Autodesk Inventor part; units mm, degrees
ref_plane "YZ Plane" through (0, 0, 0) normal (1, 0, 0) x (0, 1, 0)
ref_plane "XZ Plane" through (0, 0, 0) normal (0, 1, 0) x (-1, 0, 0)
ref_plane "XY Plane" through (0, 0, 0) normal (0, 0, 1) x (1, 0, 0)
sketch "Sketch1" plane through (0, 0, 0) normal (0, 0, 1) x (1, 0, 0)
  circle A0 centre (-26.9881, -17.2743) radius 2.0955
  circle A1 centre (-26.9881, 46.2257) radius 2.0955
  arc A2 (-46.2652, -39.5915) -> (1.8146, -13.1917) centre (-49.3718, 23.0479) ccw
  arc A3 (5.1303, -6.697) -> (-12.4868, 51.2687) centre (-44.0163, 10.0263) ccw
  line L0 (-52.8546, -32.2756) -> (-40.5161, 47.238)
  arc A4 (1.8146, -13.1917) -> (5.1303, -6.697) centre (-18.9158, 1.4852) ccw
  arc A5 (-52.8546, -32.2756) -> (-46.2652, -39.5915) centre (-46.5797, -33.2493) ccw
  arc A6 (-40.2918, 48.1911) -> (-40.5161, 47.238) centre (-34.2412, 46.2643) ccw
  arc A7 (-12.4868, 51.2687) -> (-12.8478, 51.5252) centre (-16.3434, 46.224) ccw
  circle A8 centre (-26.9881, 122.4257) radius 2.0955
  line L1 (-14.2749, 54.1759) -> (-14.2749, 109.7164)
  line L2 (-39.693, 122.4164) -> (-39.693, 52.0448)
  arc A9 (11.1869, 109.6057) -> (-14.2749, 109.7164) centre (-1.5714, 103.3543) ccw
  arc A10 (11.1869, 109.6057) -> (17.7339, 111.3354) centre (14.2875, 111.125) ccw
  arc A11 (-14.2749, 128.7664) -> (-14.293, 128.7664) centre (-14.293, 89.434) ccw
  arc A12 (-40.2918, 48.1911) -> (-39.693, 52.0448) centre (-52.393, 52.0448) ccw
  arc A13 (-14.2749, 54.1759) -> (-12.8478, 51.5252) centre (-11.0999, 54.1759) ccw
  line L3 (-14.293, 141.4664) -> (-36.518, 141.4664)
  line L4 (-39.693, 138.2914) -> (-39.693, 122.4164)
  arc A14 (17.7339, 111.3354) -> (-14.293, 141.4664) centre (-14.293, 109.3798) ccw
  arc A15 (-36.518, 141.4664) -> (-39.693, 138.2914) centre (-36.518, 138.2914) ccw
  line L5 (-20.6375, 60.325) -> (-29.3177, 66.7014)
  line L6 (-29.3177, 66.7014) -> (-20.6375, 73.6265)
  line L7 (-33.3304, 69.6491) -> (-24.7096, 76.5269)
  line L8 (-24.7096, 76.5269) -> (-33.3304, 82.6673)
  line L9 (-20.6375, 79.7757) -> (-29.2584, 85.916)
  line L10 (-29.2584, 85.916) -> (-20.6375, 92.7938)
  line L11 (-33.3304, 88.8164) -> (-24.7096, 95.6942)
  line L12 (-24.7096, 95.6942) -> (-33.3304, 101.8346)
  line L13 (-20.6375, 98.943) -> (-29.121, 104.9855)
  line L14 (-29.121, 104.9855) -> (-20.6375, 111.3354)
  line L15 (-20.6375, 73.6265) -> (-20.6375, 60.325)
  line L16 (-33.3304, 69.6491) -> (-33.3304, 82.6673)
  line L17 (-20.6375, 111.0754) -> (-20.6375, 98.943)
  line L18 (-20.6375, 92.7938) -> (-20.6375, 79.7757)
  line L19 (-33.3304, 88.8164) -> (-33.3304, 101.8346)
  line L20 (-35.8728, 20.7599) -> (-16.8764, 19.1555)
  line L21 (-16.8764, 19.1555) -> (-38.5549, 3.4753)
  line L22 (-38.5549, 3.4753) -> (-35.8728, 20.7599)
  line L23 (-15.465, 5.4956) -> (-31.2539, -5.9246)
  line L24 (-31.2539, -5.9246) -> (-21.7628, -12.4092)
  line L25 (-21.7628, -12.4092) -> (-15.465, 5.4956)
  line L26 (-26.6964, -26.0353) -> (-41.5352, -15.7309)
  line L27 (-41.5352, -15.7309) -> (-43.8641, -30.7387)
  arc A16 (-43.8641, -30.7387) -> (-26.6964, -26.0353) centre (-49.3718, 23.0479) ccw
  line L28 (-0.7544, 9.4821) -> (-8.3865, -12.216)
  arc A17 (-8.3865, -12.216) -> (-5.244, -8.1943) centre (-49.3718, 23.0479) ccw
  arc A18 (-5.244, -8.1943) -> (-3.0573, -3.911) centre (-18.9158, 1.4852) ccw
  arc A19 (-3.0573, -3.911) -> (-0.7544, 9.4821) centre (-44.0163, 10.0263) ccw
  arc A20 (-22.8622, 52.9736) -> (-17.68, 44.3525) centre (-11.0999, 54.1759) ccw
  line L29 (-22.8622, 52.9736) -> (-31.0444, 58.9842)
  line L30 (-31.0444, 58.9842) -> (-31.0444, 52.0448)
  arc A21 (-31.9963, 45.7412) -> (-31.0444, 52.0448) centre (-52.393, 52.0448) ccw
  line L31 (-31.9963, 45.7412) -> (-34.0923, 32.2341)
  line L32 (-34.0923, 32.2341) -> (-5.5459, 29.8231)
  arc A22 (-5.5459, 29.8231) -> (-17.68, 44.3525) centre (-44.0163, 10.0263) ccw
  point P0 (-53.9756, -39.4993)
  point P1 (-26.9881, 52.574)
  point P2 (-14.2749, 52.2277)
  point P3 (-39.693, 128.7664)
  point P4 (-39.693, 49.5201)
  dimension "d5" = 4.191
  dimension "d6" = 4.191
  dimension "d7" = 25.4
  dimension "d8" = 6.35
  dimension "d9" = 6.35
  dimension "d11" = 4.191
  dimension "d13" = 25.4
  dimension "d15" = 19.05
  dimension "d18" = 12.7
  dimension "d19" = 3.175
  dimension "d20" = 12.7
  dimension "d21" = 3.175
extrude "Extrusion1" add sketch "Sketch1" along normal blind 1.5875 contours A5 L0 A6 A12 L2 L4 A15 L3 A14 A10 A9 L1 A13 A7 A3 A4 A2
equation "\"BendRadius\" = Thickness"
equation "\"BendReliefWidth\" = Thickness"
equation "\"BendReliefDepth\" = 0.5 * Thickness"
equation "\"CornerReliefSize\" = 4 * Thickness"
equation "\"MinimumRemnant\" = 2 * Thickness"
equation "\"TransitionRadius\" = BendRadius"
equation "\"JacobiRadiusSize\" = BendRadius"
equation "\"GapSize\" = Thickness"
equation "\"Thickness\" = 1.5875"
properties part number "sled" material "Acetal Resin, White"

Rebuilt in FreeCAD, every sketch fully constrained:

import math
import FreeCAD as App
import Part
import Sketcher
from FreeCAD import Vector
Q = App.Units.Quantity

doc = App.newDocument("Part")
body = doc.addObject("PartDesign::Body", "Body")

sketch1 = body.newObject("Sketcher::SketchObject", "Sketch")
sketch1.AttachmentSupport = (doc.getObject("XY_Plane"), [""])
sketch1.MapMode = "FlatFace"
sketch1.addGeometry([
    Part.ArcOfCircle(Part.Circle(Vector(-46.5797, -33.2493, 0), Vector(0, 0, 1), 6.349997), math.radians(171.179544), math.radians(272.838885)),
    Part.ArcOfCircle(Part.Circle(Vector(-49.3718, 23.0479, 0), Vector(0, 0, 1), 62.716389), math.radians(-87.160743), math.radians(-35.298217)),
    Part.ArcOfCircle(Part.Circle(Vector(-18.917793, 1.486406, 0), Vector(0, 0, 1), 25.402341), math.radians(-35.297705), math.radians(-18.793097)),
    Part.ArcOfCircle(Part.Circle(Vector(-44.0163, 10.0263, 0), Vector(0, 0, 1), 51.913939), math.radians(-18.792094), math.radians(52.602364)),
    Part.ArcOfCircle(Part.Circle(Vector(-16.327299, 46.24584, 0), Vector(0, 0, 1), 6.32286), math.radians(52.598325), math.radians(56.612084)),
    Part.ArcOfCircle(Part.Circle(Vector(-11.0999, 54.1759, 0), Vector(0, 0, 1), 3.175), math.radians(180), math.radians(236.598714)),
    Part.LineSegment(Vector(-14.2749, 54.1759, 0), Vector(-14.2749, 109.7164, 0)),
    Part.ArcOfCircle(Part.Circle(Vector(-1.5714, 103.3543, 0), Vector(0, 0, 1), 14.207541), math.radians(26.104249), math.radians(153.397616)),
    Part.ArcOfCircle(Part.Circle(Vector(14.2875, 111.125, 0), Vector(0, 0, 1), 3.452824), math.radians(-153.895057), math.radians(3.493526)),
    Part.ArcOfCircle(Part.Circle(Vector(-14.293, 109.3798, 0), Vector(0, 0, 1), 32.08655), math.radians(3.494209), math.radians(90)),
    Part.LineSegment(Vector(-14.293, 141.4664, 0), Vector(-36.518, 141.4664, 0)),
    Part.ArcOfCircle(Part.Circle(Vector(-36.518, 138.2914, 0), Vector(0, 0, 1), 3.175), math.radians(90), math.radians(180)),
    Part.LineSegment(Vector(-39.693, 138.2914, 0), Vector(-39.693, 52.0448, 0)),
    Part.ArcOfCircle(Part.Circle(Vector(-52.393, 52.0448, 0), Vector(0, 0, 1), 12.700002), math.radians(-17.664389), math.radians(0)),
    Part.ArcOfCircle(Part.Circle(Vector(-34.239374, 46.263795, 0), Vector(0, 0, 1), 6.351879), math.radians(162.3367), math.radians(171.177569)),
    Part.LineSegment(Vector(-40.5161, 47.238, 0), Vector(-52.8546, -32.2756, 0)),
    Part.LineSegment(Vector(-41.5352, -15.7309, 0), Vector(-26.6964, -26.0353, 0)),
    Part.ArcOfCircle(Part.Circle(Vector(-49.3718, 23.0479, 0), Vector(0, 0, 1), 54.067897), math.radians(-84.153342), math.radians(-65.204062)),
    Part.LineSegment(Vector(-43.8641, -30.7387, 0), Vector(-41.5352, -15.7309, 0)),
    Part.Circle(Vector(-26.9881, -17.2743, 0), Vector(0, 0, 1), 2.0955),
    Part.LineSegment(Vector(-31.2539, -5.9246, 0), Vector(-15.465, 5.4956, 0)),
    Part.LineSegment(Vector(-15.465, 5.4956, 0), Vector(-21.7628, -12.4092, 0)),
    Part.LineSegment(Vector(-21.7628, -12.4092, 0), Vector(-31.2539, -5.9246, 0)),
    Part.LineSegment(Vector(-38.5549, 3.4753, 0), Vector(-35.8728, 20.7599, 0)),
    Part.LineSegment(Vector(-35.8728, 20.7599, 0), Vector(-16.8764, 19.1555, 0)),
    Part.LineSegment(Vector(-16.8764, 19.1555, 0), Vector(-38.5549, 3.4753, 0)),
    Part.LineSegment(Vector(-31.0444, 58.9842, 0), Vector(-22.8622, 52.9736, 0)),
    Part.ArcOfCircle(Part.Circle(Vector(-11.0999, 54.1759, 0), Vector(0, 0, 1), 11.823588), math.radians(-174.163701), math.radians(-123.815732)),
    Part.ArcOfCircle(Part.Circle(Vector(-44.0163, 10.0263, 0), Vector(0, 0, 1), 43.265321), math.radians(27.230271), math.radians(52.503278)),
    Part.LineSegment(Vector(-5.5459, 29.8231, 0), Vector(-34.0923, 32.2341, 0)),
    Part.LineSegment(Vector(-34.0923, 32.2341, 0), Vector(-31.9963, 45.7412, 0)),
    Part.ArcOfCircle(Part.Circle(Vector(-52.39502, 52.045262, 0), Vector(0, 0, 1), 21.35062), math.radians(-17.173347), math.radians(-0.00124)),
    Part.LineSegment(Vector(-31.0444, 52.0448, 0), Vector(-31.0444, 58.9842, 0)),
    Part.LineSegment(Vector(-8.3865, -12.216, 0), Vector(-0.7544, 9.4821, 0)),
    Part.ArcOfCircle(Part.Circle(Vector(-44.0163, 10.0263, 0), Vector(0, 0, 1), 43.265321), math.radians(-18.792126), math.radians(-0.720697)),
    Part.ArcOfCircle(Part.Circle(Vector(-18.9158, 1.4852, 0), Vector(0, 0, 1), 16.751443), math.radians(-35.298119), math.radians(-18.79199)),
    Part.ArcOfCircle(Part.Circle(Vector(-49.372873, 23.04878, 0), Vector(0, 0, 1), 54.069284), math.radians(-40.708787), math.radians(-35.298354)),
    Part.LineSegment(Vector(-20.6375, 73.6265, 0), Vector(-20.6375, 60.325, 0)),
    Part.LineSegment(Vector(-20.6375, 60.325, 0), Vector(-29.3177, 66.7014, 0)),
    Part.LineSegment(Vector(-29.3177, 66.7014, 0), Vector(-20.6375, 73.6265, 0)),
    Part.LineSegment(Vector(-24.7096, 76.5269, 0), Vector(-33.3304, 69.6491, 0)),
    Part.LineSegment(Vector(-33.3304, 69.6491, 0), Vector(-33.3304, 82.6673, 0)),
    Part.LineSegment(Vector(-33.3304, 82.6673, 0), Vector(-24.7096, 76.5269, 0)),
    Part.LineSegment(Vector(-24.7096, 95.6942, 0), Vector(-33.3304, 88.8164, 0)),
    Part.LineSegment(Vector(-33.3304, 88.8164, 0), Vector(-33.3304, 101.8346, 0)),
    Part.LineSegment(Vector(-33.3304, 101.8346, 0), Vector(-24.7096, 95.6942, 0)),
    Part.LineSegment(Vector(-20.6375, 92.7938, 0), Vector(-20.6375, 79.7757, 0)),
    Part.LineSegment(Vector(-20.6375, 79.7757, 0), Vector(-29.2584, 85.916, 0)),
    Part.LineSegment(Vector(-29.2584, 85.916, 0), Vector(-20.6375, 92.7938, 0)),
    Part.Circle(Vector(-26.9881, 122.4257, 0), Vector(0, 0, 1), 2.0955),
], False)
sketch1.addConstraint([
    Sketcher.Constraint("Coincident", 0, 2, 1, 1),
    Sketcher.Constraint("Coincident", 1, 2, 2, 1),
    Sketcher.Constraint("Coincident", 2, 2, 3, 1),
    Sketcher.Constraint("Coincident", 3, 2, 4, 1),
    Sketcher.Constraint("Coincident", 4, 2, 5, 2),
    Sketcher.Constraint("Coincident", 5, 1, 6, 1),
    Sketcher.Constraint("Coincident", 6, 2, 7, 2),
    Sketcher.Constraint("Coincident", 7, 1, 8, 1),
    Sketcher.Constraint("Coincident", 8, 2, 9, 1),
    Sketcher.Constraint("Coincident", 9, 2, 10, 1),
    Sketcher.Constraint("Coincident", 10, 2, 11, 1),
    Sketcher.Constraint("Coincident", 11, 2, 12, 1),
    Sketcher.Constraint("Coincident", 12, 2, 13, 2),
    Sketcher.Constraint("Coincident", 13, 1, 14, 1),
    Sketcher.Constraint("Coincident", 14, 2, 15, 1),
    Sketcher.Constraint("Coincident", 15, 2, 0, 1),
    Sketcher.Constraint("Coincident", 16, 2, 17, 2),
    Sketcher.Constraint("Coincident", 17, 1, 18, 1),
    Sketcher.Constraint("Coincident", 18, 2, 16, 1),
    Sketcher.Constraint("Coincident", 20, 2, 21, 1),
    Sketcher.Constraint("Coincident", 21, 2, 22, 1),
    Sketcher.Constraint("Coincident", 22, 2, 20, 1),
    Sketcher.Constraint("Coincident", 23, 2, 24, 1),
    Sketcher.Constraint("Coincident", 24, 2, 25, 1),
    Sketcher.Constraint("Coincident", 25, 2, 23, 1),
    Sketcher.Constraint("Coincident", 26, 2, 27, 1),
    Sketcher.Constraint("Coincident", 27, 2, 28, 2),
    Sketcher.Constraint("Coincident", 28, 1, 29, 1),
    Sketcher.Constraint("Coincident", 29, 2, 30, 1),
    Sketcher.Constraint("Coincident", 30, 2, 31, 1),
    Sketcher.Constraint("Coincident", 31, 2, 32, 1),
    Sketcher.Constraint("Coincident", 32, 2, 26, 1),
    Sketcher.Constraint("Coincident", 33, 2, 34, 2),
    Sketcher.Constraint("Coincident", 34, 1, 35, 2),
    Sketcher.Constraint("Coincident", 35, 1, 36, 2),
    Sketcher.Constraint("Coincident", 36, 1, 33, 1),
    Sketcher.Constraint("Coincident", 37, 2, 38, 1),
    Sketcher.Constraint("Coincident", 38, 2, 39, 1),
    Sketcher.Constraint("Coincident", 39, 2, 37, 1),
    Sketcher.Constraint("Coincident", 40, 2, 41, 1),
    Sketcher.Constraint("Coincident", 41, 2, 42, 1),
    Sketcher.Constraint("Coincident", 42, 2, 40, 1),
    Sketcher.Constraint("Coincident", 43, 2, 44, 1),
    Sketcher.Constraint("Coincident", 44, 2, 45, 1),
    Sketcher.Constraint("Coincident", 45, 2, 43, 1),
    Sketcher.Constraint("Coincident", 46, 2, 47, 1),
    Sketcher.Constraint("Coincident", 47, 2, 48, 1),
    Sketcher.Constraint("Coincident", 48, 2, 46, 1),
    Sketcher.Constraint("Vertical", 6),
    Sketcher.Constraint("Horizontal", 10),
    Sketcher.Constraint("Vertical", 12),
    Sketcher.Constraint("Vertical", 32),
    Sketcher.Constraint("Vertical", 37),
    Sketcher.Constraint("Vertical", 41),
    Sketcher.Constraint("Vertical", 44),
    Sketcher.Constraint("Vertical", 46),
    Sketcher.Constraint("Coincident", 17, 3, 1, 3),
    Sketcher.Constraint("Coincident", 27, 3, 5, 3),
    Sketcher.Constraint("Coincident", 28, 3, 3, 3),
    Sketcher.Constraint("Coincident", 34, 3, 3, 3),
    Sketcher.Constraint("Radius", 13, Q("0.5 in")),
    Sketcher.Constraint("Radius", 0, Q("0.25 in")),
    Sketcher.Constraint("Diameter", 19, Q("0.165 in")),
    Sketcher.Constraint("Diameter", 49, Q("0.165 in")),
    Sketcher.Constraint("Radius", 5, Q("0.125 in")),
    Sketcher.Constraint("Radius", 11, Q("0.125 in")),
    Sketcher.Constraint("Radius", 2, Q("1.0001 in")),
    Sketcher.Constraint("Radius", 27, Q("0.4655 in")),
    Sketcher.Constraint("Radius", 35, Q("0.6595 in")),
    Sketcher.Constraint("Radius", 36, Q("2.1287 in")),
    Sketcher.Constraint("DistanceX", 10, 2, 10, 1, Q("0.875 in")),
    Sketcher.Constraint("Radius", 1, Q("62.7164 mm")),
    Sketcher.Constraint("Radius", 3, Q("51.914 mm")),
    Sketcher.Constraint("Radius", 4, Q("6.3229 mm")),
    Sketcher.Constraint("Radius", 7, Q("14.2075 mm")),
    Sketcher.Constraint("Radius", 8, Q("3.4528 mm")),
    Sketcher.Constraint("Radius", 9, Q("32.0866 mm")),
    Sketcher.Constraint("Radius", 14, Q("6.3519 mm")),
    Sketcher.Constraint("Radius", 17, Q("54.068 mm")),
    Sketcher.Constraint("Radius", 28, Q("43.2653 mm")),
    Sketcher.Constraint("Radius", 31, Q("21.3506 mm")),
    Sketcher.Constraint("Radius", 34, Q("43.2653 mm")),
    Sketcher.Constraint("DistanceY", 32, 1, 32, 2, Q("0.2732 in")),
    Sketcher.Constraint("DistanceX", 5, 3, -1, 1, Q("0.437 in")),
    Sketcher.Constraint("DistanceX", -1, 1, 8, 3, Q("0.5625 in")),
    Sketcher.Constraint("DistanceY", -1, 1, 8, 3, Q("4.375 in")),
    Sketcher.Constraint("DistanceY", -1, 1, 13, 3, Q("2.049 in")),
    Sketcher.Constraint("DistanceX", 14, 3, -1, 1, Q("1.348 in")),
    Sketcher.Constraint("DistanceY", -1, 1, 12, 2, Q("2.049 in")),
    Sketcher.Constraint("DistanceY", 16, 2, -1, 1, Q("1.025 in")),
    Sketcher.Constraint("DistanceY", -1, 1, 31, 2, Q("2.049 in")),
    Sketcher.Constraint("DistanceX", 37, 2, -1, 1, Q("0.8125 in")),
    Sketcher.Constraint("DistanceY", -1, 1, 37, 2, Q("2.375 in")),
    Sketcher.Constraint("DistanceX", 46, 2, -1, 1, Q("0.8125 in")),
    Sketcher.Constraint("Distance", 26, Q("0.3997 in")),
    Sketcher.Constraint("Distance", 42, Q("0.4167 in")),
    Sketcher.Constraint("Distance", 45, Q("0.4167 in")),
    Sketcher.Constraint("Distance", 47, Q("0.4167 in")),
    Sketcher.Constraint("DistanceY", 6, 1, 6, 2, Q("55.5405 mm")),
    Sketcher.Constraint("DistanceY", 12, 2, 12, 1, Q("86.2466 mm")),
    Sketcher.Constraint("DistanceY", 37, 2, 37, 1, Q("13.3015 mm")),
    Sketcher.Constraint("DistanceY", 41, 1, 41, 2, Q("13.0182 mm")),
    Sketcher.Constraint("DistanceY", 44, 1, 44, 2, Q("13.0182 mm")),
    Sketcher.Constraint("DistanceY", 46, 2, 46, 1, Q("13.018 mm")),
    Sketcher.Constraint("DistanceY", -1, 1, 1, 3, Q("0.9074 in")),
    Sketcher.Constraint("DistanceX", 2, 3, -1, 1, Q("0.7448 in")),
    Sketcher.Constraint("DistanceX", 4, 3, -1, 1, Q("0.6428 in")),
    Sketcher.Constraint("DistanceY", -1, 1, 4, 3, Q("1.8207 in")),
    Sketcher.Constraint("DistanceY", -1, 1, 9, 3, Q("4.3063 in")),
    Sketcher.Constraint("DistanceY", -1, 1, 14, 3, Q("1.8214 in")),
    Sketcher.Constraint("DistanceY", 19, 3, -1, 1, Q("0.6801 in")),
    Sketcher.Constraint("DistanceX", 31, 3, -1, 1, Q("2.0628 in")),
    Sketcher.Constraint("DistanceY", -1, 1, 49, 3, Q("4.8199 in")),
    Sketcher.Constraint("DistanceX", 3, 2, -1, 1, Q("0.4916 in")),
    Sketcher.Constraint("DistanceY", -1, 1, 5, 1, Q("2.1329 in")),
    Sketcher.Constraint("DistanceX", 13, 1, -1, 1, Q("1.5863 in")),
    Sketcher.Constraint("DistanceX", 15, 2, -1, 1, Q("2.0809 in")),
    Sketcher.Constraint("DistanceY", 15, 2, -1, 1, Q("1.2707 in")),
    Sketcher.Constraint("DistanceX", 21, 2, -1, 1, Q("0.8568 in")),
    Sketcher.Constraint("DistanceX", 25, 2, -1, 1, Q("1.5179 in")),
    Sketcher.Constraint("DistanceX", 30, 2, -1, 1, Q("1.2597 in")),
    Sketcher.Constraint("DistanceX", 33, 2, -1, 1, Q("0.0297 in")),
    Sketcher.Constraint("DistanceY", -1, 1, 33, 2, Q("0.3733 in")),
    Sketcher.Constraint("DistanceY", 35, 1, -1, 1, Q("0.3226 in")),
    Sketcher.Constraint("DistanceY", -1, 1, 40, 2, Q("2.7421 in")),
    Sketcher.Constraint("DistanceY", -1, 1, 43, 2, Q("3.4967 in")),
    Sketcher.Constraint("DistanceY", -1, 1, 45, 2, Q("3.7675 in")),
    Sketcher.Constraint("DistanceX", 47, 2, -1, 1, Q("1.1519 in")),
    Sketcher.Constraint("DistanceY", -1, 1, 48, 2, Q("3.6533 in")),
    Sketcher.Constraint("Distance", 15, Q("80.4652 mm")),
    Sketcher.Constraint("Distance", 16, Q("18.0657 mm")),
    Sketcher.Constraint("Distance", 18, Q("15.1874 mm")),
    Sketcher.Constraint("Distance", 20, Q("19.4862 mm")),
    Sketcher.Constraint("Distance", 21, Q("18.98 mm")),
    Sketcher.Constraint("Distance", 22, Q("11.4948 mm")),
    Sketcher.Constraint("Distance", 23, Q("17.4915 mm")),
    Sketcher.Constraint("Distance", 24, Q("19.064 mm")),
    Sketcher.Constraint("Distance", 25, Q("26.755 mm")),
    Sketcher.Constraint("Distance", 29, Q("28.648 mm")),
    Sketcher.Constraint("Distance", 30, Q("13.6688 mm")),
    Sketcher.Constraint("Distance", 33, Q("23.0012 mm")),
    Sketcher.Constraint("Distance", 38, Q("10.7705 mm")),
    Sketcher.Constraint("Distance", 39, Q("11.1042 mm")),
    Sketcher.Constraint("Distance", 40, Q("11.0283 mm")),
    Sketcher.Constraint("DistanceX", 19, 3, -1, 1, Q("26.988 mm")),
    Sketcher.Constraint("DistanceY", -1, 1, 31, 3, Q("52.0453 mm")),
    Sketcher.Constraint("DistanceX", 35, 3, -1, 1, Q("18.9158 mm")),
    Sketcher.Constraint("DistanceX", 36, 3, -1, 1, Q("49.3729 mm")),
    Sketcher.Constraint("DistanceX", 49, 3, -1, 1, Q("26.988 mm")),
    Sketcher.Constraint("DistanceX", 0, 2, -1, 1, Q("46.2652 mm")),
    Sketcher.Constraint("DistanceX", -1, 1, 1, 2, Q("1.8145 mm")),
    Sketcher.Constraint("DistanceX", -1, 1, 2, 2, Q("5.1303 mm")),
    Sketcher.Constraint("DistanceX", 4, 2, -1, 1, Q("12.8478 mm")),
    Sketcher.Constraint("DistanceX", -1, 1, 7, 1, Q("11.187 mm")),
    Sketcher.Constraint("DistanceX", -1, 1, 8, 2, Q("0.698189 in")),
    Sketcher.Constraint("DistanceX", 9, 2, -1, 1, Q("14.293 mm")),
    Sketcher.Constraint("DistanceX", 17, 1, -1, 1, Q("43.864 mm")),
    Sketcher.Constraint("DistanceX", 20, 2, -1, 1, Q("15.465 mm")),
    Sketcher.Constraint("DistanceY", -1, 1, 20, 2, Q("5.4956 mm")),
    Sketcher.Constraint("DistanceX", 23, 2, -1, 1, Q("35.8728 mm")),
    Sketcher.Constraint("DistanceY", -1, 1, 23, 2, Q("20.76 mm")),
    Sketcher.Constraint("DistanceX", 28, 1, -1, 1, Q("5.5459 mm")),
    Sketcher.Constraint("DistanceX", 34, 1, -1, 1, Q("3.0573 mm")),
    Sketcher.Constraint("DistanceX", 40, 2, -1, 1, Q("33.3304 mm")),
    Sketcher.Constraint("DistanceX", 43, 2, -1, 1, Q("33.3304 mm")),
])
pad1 = body.newObject("PartDesign::Pad", "Pad")
pad1.Profile = sketch1
pad1.Length = Q("0.0625 in")

doc.recompute()
